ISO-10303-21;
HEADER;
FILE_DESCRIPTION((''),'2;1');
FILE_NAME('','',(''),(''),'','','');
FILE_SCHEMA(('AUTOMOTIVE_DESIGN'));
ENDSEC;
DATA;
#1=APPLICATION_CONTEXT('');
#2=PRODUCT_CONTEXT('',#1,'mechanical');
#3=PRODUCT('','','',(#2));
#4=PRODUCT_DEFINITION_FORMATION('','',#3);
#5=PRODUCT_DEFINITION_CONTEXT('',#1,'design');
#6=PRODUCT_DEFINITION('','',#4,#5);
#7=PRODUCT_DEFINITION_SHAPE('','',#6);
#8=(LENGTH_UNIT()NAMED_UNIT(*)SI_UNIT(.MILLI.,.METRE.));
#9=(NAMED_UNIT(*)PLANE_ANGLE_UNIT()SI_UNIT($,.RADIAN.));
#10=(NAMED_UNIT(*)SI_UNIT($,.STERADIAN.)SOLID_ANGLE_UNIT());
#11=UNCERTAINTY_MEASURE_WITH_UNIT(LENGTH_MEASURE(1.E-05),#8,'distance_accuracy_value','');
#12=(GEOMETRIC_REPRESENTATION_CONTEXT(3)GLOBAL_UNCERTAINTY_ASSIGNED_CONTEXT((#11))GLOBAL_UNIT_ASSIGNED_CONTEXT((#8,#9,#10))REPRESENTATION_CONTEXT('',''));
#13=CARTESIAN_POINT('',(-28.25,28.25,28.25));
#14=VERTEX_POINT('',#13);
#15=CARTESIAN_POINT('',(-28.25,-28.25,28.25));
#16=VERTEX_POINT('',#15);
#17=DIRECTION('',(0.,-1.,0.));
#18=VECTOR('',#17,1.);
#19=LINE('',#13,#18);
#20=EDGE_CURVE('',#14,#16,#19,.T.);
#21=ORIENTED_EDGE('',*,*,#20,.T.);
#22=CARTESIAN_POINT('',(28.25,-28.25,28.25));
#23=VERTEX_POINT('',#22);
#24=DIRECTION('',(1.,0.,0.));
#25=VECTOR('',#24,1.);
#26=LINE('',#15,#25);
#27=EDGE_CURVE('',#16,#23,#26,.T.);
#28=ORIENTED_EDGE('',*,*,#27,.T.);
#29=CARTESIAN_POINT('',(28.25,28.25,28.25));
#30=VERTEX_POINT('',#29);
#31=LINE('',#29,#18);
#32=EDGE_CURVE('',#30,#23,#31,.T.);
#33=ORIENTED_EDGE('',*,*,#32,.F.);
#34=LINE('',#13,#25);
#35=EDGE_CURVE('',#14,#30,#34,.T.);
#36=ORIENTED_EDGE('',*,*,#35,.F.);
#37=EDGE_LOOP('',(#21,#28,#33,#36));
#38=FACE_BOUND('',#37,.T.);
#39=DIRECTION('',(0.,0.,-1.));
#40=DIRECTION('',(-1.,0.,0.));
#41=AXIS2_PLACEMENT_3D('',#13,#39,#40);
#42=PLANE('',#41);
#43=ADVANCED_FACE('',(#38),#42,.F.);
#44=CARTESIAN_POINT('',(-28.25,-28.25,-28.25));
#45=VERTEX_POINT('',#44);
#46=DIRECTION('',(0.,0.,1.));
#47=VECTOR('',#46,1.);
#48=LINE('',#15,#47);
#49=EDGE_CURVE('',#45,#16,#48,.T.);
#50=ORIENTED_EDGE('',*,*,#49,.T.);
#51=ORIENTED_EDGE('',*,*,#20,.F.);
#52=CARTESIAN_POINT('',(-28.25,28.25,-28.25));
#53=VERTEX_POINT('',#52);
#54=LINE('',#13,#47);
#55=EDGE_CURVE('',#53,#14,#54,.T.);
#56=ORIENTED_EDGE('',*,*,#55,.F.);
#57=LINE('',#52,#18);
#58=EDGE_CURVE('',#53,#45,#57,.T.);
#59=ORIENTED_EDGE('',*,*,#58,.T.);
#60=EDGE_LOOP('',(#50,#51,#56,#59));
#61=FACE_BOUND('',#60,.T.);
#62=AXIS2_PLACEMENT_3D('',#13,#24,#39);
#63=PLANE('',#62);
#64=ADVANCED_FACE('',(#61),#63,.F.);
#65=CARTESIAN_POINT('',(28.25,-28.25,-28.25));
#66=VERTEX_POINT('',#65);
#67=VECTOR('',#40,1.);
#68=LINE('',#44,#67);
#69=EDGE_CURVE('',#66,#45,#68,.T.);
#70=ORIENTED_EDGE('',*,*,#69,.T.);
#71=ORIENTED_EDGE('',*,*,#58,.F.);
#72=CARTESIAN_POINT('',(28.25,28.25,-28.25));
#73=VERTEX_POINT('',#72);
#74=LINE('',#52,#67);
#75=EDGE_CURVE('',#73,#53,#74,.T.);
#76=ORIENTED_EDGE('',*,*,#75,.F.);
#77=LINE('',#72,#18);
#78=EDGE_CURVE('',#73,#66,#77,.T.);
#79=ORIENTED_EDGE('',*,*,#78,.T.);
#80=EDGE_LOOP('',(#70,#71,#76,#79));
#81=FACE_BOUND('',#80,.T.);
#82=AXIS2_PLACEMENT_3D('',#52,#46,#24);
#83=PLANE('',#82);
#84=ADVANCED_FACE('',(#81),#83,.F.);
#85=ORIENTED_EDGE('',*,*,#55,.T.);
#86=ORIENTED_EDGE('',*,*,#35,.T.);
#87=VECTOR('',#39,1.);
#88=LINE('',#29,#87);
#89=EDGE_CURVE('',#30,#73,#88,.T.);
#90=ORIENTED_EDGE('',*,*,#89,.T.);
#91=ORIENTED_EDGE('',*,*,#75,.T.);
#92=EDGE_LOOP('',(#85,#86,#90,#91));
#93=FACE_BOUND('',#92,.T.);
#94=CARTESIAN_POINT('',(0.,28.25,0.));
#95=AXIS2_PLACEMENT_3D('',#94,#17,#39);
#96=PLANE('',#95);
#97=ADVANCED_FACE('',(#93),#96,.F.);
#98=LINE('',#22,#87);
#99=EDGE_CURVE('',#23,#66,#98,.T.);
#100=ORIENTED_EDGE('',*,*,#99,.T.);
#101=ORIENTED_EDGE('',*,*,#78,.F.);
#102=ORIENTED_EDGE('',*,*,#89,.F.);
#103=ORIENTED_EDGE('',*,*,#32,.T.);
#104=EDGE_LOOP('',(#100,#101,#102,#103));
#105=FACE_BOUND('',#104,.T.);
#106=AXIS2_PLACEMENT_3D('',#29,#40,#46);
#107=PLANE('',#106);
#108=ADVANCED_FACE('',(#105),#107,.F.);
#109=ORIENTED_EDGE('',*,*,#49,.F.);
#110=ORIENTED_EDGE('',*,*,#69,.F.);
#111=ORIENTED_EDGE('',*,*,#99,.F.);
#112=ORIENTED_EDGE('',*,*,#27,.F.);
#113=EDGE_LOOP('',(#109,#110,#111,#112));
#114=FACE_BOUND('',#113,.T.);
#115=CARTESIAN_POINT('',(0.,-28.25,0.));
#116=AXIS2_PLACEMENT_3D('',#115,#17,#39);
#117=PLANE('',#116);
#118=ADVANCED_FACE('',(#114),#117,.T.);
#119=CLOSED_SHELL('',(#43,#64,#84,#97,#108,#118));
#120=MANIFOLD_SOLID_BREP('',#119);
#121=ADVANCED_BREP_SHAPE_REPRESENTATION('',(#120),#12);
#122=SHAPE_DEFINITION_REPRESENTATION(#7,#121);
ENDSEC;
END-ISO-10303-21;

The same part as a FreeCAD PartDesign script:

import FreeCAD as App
import Part
import Sketcher

V = App.Vector
Q = App.Units.Quantity

doc = App.newDocument("Part")
body = doc.addObject("PartDesign::Body", "Body")

# Sketch on XZ plane
sketch1 = body.newObject("Sketcher::SketchObject", "Sketch")
sketch1.AttachmentSupport = (doc.getObject("XZ_Plane"), [""])
sketch1.MapMode = "FlatFace"
sketch1.addGeometry(Part.LineSegment(V(-28, -28, 0), V(-28, 28, 0)), False)
sketch1.addGeometry(Part.LineSegment(V(-28, 28, 0), V(28, 28, 0)), False)
sketch1.addGeometry(Part.LineSegment(V(28, 28, 0), V(28, -28, 0)), False)
sketch1.addGeometry(Part.LineSegment(V(28, -28, 0), V(-28, -28, 0)), False)
sketch1.addConstraint(Sketcher.Constraint("Coincident", 0, 2, 1, 1))
sketch1.addConstraint(Sketcher.Constraint("Coincident", 1, 2, 2, 1))
sketch1.addConstraint(Sketcher.Constraint("Coincident", 2, 2, 3, 1))
sketch1.addConstraint(Sketcher.Constraint("Coincident", 3, 2, 0, 1))
sketch1.addConstraint(Sketcher.Constraint("Vertical", 0))
sketch1.addConstraint(Sketcher.Constraint("Horizontal", 1))
sketch1.addConstraint(Sketcher.Constraint("Vertical", 2))
sketch1.addConstraint(Sketcher.Constraint("Horizontal", 3))
sketch1.addConstraint(Sketcher.Constraint("Symmetric", 0, 2, 2, 2, -1, 1))
sketch1.addConstraint(Sketcher.Constraint("Equal", 3, 0))
sketch1.addConstraint(Sketcher.Constraint("DistanceX", 1, 1, 1, 2, Q("56.5 mm")))
pad1 = body.newObject("PartDesign::Pad", "Pad")
pad1.Profile = sketch1
pad1.Length = 56.5
pad1.Midplane = True

doc.recompute()
